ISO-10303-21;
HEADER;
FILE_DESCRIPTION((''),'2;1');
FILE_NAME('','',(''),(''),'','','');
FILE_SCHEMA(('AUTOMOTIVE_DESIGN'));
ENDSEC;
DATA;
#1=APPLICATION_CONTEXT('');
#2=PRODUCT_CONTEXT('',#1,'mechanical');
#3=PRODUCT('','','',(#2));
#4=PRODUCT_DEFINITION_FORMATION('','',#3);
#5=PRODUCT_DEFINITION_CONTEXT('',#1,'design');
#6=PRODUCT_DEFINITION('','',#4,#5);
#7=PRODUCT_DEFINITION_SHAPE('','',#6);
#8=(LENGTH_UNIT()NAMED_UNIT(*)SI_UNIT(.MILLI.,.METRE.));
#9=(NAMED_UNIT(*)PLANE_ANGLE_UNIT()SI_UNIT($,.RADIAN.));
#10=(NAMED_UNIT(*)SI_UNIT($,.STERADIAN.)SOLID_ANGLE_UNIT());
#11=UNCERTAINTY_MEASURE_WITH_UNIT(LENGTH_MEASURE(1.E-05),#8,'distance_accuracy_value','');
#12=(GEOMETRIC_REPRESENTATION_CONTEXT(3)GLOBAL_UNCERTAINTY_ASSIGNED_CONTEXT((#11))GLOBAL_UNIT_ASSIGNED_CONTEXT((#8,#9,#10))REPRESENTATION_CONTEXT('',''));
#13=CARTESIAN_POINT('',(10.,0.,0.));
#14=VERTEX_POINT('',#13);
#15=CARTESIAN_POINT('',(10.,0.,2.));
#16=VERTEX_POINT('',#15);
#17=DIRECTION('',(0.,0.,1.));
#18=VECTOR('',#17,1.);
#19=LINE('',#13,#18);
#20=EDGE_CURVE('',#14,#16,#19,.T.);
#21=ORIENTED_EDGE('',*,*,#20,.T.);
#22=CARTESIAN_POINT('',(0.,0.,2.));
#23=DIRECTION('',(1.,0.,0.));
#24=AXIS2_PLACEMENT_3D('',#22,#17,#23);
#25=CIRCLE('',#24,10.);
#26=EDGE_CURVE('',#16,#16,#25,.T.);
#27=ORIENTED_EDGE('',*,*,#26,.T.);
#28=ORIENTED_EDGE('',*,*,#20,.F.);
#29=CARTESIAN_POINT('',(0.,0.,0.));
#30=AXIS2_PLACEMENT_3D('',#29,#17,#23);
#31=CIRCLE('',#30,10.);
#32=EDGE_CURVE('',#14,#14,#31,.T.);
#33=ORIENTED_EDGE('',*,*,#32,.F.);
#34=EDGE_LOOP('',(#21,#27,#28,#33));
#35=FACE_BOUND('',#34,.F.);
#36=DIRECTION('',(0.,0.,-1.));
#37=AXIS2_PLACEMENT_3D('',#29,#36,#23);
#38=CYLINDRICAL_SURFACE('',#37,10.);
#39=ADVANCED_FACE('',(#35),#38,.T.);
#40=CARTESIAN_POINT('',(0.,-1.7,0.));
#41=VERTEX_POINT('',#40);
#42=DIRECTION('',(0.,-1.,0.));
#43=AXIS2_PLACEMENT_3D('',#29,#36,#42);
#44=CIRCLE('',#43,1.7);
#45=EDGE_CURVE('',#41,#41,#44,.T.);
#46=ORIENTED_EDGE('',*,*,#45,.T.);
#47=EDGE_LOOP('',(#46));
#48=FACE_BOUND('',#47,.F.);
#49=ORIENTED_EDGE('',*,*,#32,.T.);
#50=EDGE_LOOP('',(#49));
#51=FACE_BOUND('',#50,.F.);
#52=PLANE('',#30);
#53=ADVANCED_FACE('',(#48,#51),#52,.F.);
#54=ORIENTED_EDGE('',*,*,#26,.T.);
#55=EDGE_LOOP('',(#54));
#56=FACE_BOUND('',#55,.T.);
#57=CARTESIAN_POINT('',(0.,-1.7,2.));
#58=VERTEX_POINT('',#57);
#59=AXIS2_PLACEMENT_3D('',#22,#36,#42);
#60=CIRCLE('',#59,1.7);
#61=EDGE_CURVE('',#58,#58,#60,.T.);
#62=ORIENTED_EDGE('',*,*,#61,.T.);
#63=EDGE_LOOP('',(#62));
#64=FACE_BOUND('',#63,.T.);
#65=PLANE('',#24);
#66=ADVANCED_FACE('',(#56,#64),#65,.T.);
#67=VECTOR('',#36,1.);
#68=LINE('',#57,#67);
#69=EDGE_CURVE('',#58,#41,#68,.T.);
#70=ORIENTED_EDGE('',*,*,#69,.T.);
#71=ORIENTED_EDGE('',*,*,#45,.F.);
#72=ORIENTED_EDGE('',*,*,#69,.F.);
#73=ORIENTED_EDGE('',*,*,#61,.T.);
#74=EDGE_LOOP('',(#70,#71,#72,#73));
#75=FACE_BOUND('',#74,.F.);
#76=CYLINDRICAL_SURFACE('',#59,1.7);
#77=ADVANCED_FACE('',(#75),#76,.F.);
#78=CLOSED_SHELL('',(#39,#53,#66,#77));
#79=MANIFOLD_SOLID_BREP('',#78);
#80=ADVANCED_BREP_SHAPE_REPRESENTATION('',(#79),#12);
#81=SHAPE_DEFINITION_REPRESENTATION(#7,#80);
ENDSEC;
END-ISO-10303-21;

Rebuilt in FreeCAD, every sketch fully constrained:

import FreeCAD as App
import Part
import Sketcher
from FreeCAD import Vector

doc = App.newDocument("Part")
body = doc.addObject("PartDesign::Body", "Body")

sketch1 = body.newObject("Sketcher::SketchObject", "Sketch")
sketch1.AttachmentSupport = (doc.getObject("XY_Plane"), [""])
sketch1.MapMode = "FlatFace"
sketch1.addGeometry(Part.Circle(Vector(0, 0, 0), Vector(0, 0, 1), 10), False)
sketch1.addConstraint([
    Sketcher.Constraint("Coincident", 0, 3, -1, 1),
    Sketcher.Constraint("Diameter", 0, 20.0),
])
pad1 = body.newObject("PartDesign::Pad", "Pad")
pad1.Profile = sketch1
pad1.Length = 2

sketch2 = body.newObject("Sketcher::SketchObject", "Sketch001")
sketch2.AttachmentSupport = (doc.getObject("XY_Plane"), [""])
sketch2.MapMode = "FlatFace"
sketch2.AttachmentOffset = App.Placement(Vector(0, 0, 2), App.Rotation())
sketch2.addGeometry(Part.Circle(Vector(0, 0, 0), Vector(0, 0, 1), 1.7), False)
sketch2.addConstraint([
    Sketcher.Constraint("Coincident", 0, 3, -1, 1),
    Sketcher.Constraint("Diameter", 0, 3.4),
])
doc.recompute()
hole = body.newObject("PartDesign::Hole", "Hole")
hole.Profile = sketch2
hole.ThreadType = "None"
hole.Diameter = 3.4
hole.DepthType = "ThroughAll"

doc.recompute()
